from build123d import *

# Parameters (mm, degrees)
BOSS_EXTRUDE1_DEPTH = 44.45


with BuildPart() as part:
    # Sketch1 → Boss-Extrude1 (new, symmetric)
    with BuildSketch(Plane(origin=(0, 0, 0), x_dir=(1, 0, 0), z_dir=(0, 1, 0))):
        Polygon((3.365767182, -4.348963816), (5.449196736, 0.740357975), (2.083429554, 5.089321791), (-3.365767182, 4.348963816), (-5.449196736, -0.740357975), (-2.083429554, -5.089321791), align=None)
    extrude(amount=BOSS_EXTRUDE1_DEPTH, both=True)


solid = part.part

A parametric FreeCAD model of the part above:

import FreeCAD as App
import Part
import Sketcher

V = App.Vector
Q = App.Units.Quantity

doc = App.newDocument("Part")
body = doc.addObject("PartDesign::Body", "Body")

# Sketch on XZ plane
sketch1 = body.newObject("Sketcher::SketchObject", "Sketch")
sketch1.AttachmentSupport = (doc.getObject("XZ_Plane"), [""])
sketch1.MapMode = "FlatFace"
sketch1.addGeometry(Part.LineSegment(V(3.365767, 4.348964, 0), V(5.449197, -0.740358, 0)), False)
sketch1.addGeometry(Part.LineSegment(V(5.449197, -0.740358, 0), V(2.08343, -5.089322, 0)), False)
sketch1.addGeometry(Part.LineSegment(V(2.08343, -5.089322, 0), V(-3.365767, -4.348964, 0)), False)
sketch1.addGeometry(Part.LineSegment(V(-3.365767, -4.348964, 0), V(-5.449197, 0.740358, 0)), False)
sketch1.addGeometry(Part.LineSegment(V(-5.449197, 0.740358, 0), V(-2.08343, 5.089322, 0)), False)
sketch1.addGeometry(Part.LineSegment(V(-2.08343, 5.089322, 0), V(3.365767, 4.348964, 0)), False)
sketch1.addConstraint(Sketcher.Constraint("Coincident", 0, 2, 1, 1))
sketch1.addConstraint(Sketcher.Constraint("Coincident", 1, 2, 2, 1))
sketch1.addConstraint(Sketcher.Constraint("Coincident", 2, 2, 3, 1))
sketch1.addConstraint(Sketcher.Constraint("Coincident", 3, 2, 4, 1))
sketch1.addConstraint(Sketcher.Constraint("Coincident", 4, 2, 5, 1))
sketch1.addConstraint(Sketcher.Constraint("Coincident", 5, 2, 0, 1))
sketch1.addConstraint(Sketcher.Constraint("Symmetric", 0, 2, 3, 2, -1, 1))
sketch1.addConstraint(Sketcher.Constraint("Symmetric", 1, 2, 4, 2, -1, 1))
sketch1.addConstraint(Sketcher.Constraint("Symmetric", 2, 2, 5, 2, -1, 1))
sketch1.addConstraint(Sketcher.Constraint("Equal", 0, 1))
sketch1.addConstraint(Sketcher.Constraint("Equal", 1, 2))
sketch1.addConstraint(Sketcher.Constraint("Distance", 0, 5.499261))
sketch1.addConstraint(Sketcher.Constraint("DistanceX", -1, 1, 1, 2, 2.08343))
sketch1.addConstraint(Sketcher.Constraint("DistanceY", 1, 2, -1, 1, 5.089322))
sketch1.addConstraint(Sketcher.Constraint("DistanceX", 3, 2, 2, 2, 2.08343))
pad1 = body.newObject("PartDesign::Pad", "Pad")
pad1.Profile = sketch1
pad1.Length = Q("3.5 in")
pad1.Midplane = True

doc.recompute()
